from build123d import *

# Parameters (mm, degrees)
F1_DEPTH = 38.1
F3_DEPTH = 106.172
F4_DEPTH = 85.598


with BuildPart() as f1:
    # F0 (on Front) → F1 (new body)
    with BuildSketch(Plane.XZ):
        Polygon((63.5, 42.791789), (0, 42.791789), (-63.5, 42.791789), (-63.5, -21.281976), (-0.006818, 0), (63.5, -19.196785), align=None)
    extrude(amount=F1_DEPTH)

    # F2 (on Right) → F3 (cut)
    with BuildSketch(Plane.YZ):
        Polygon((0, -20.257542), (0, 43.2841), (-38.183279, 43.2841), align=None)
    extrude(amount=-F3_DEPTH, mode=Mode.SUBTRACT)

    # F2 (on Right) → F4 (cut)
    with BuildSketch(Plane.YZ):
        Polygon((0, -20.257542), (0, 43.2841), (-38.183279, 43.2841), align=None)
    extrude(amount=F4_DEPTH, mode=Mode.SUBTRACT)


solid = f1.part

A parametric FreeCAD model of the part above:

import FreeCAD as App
import Part
import Sketcher
Q = App.Units.Quantity


def add_polygon(sketch, points):
    """Adds a closed chain of lines whose ends are joined by coincident constraints."""
    first, n = sketch.GeometryCount, len(points)
    for a, b in zip(points, points[1:] + points[:1]):
        sketch.addGeometry(Part.LineSegment(App.Vector(*a, 0), App.Vector(*b, 0)), False)
    for i in range(n):
        sketch.addConstraint(Sketcher.Constraint("Coincident", first + i, 2, first + (i + 1) % n, 1))

doc = App.newDocument("Part")
body = doc.addObject("PartDesign::Body", "Body")

# Sketch on XZ plane
sketch1 = body.newObject("Sketcher::SketchObject", "Sketch")
sketch1.AttachmentSupport = (doc.getObject("XZ_Plane"), [""])
sketch1.MapMode = "FlatFace"
add_polygon(sketch1, [(64, 43), (-64, 43), (-64, -21), (0, 0), (64, -19)])  # lines 0-4
sketch1.addConstraint(Sketcher.Constraint("Horizontal", 0))
sketch1.addConstraint(Sketcher.Constraint("Vertical", 1))
sketch1.addConstraint(Sketcher.Constraint("Vertical", 4))
sketch1.addConstraint(Sketcher.Constraint("PointOnObject", 2, 2, -1))
sketch1.addConstraint(Sketcher.Constraint("DistanceX", 0, 2, 0, 1, Q("5 in")))
sketch1.addConstraint(Sketcher.Constraint("DistanceX", 0, 2, -1, 1, Q("2.5 in")))
sketch1.addConstraint(Sketcher.Constraint("Distance", 3, Q("2.612 in")))
sketch1.addConstraint(Sketcher.Constraint("DistanceY", 1, 2, 1, 1, 64.073765))
sketch1.addConstraint(Sketcher.Constraint("DistanceY", 4, 1, 4, 2, 61.988574))
sketch1.addConstraint(Sketcher.Constraint("DistanceY", -1, 1, 0, 2, 42.791789))
pad1 = body.newObject("PartDesign::Pad", "Pad")
pad1.Profile = sketch1
pad1.Length = Q("1.5 in")

# Sketch on YZ plane
sketch2 = body.newObject("Sketcher::SketchObject", "Sketch001")
sketch2.AttachmentSupport = (doc.getObject("YZ_Plane"), [""])
sketch2.MapMode = "FlatFace"
add_polygon(sketch2, [(0, -20), (0, 43), (-38, 43)])  # lines 0-2
sketch2.addConstraint(Sketcher.Constraint("Vertical", 0))
sketch2.addConstraint(Sketcher.Constraint("Horizontal", 1))
sketch2.addConstraint(Sketcher.Constraint("PointOnObject", 0, 2, -2))
sketch2.addConstraint(Sketcher.Constraint("DistanceX", 1, 2, 1, 1, 38.183279))
sketch2.addConstraint(Sketcher.Constraint("DistanceY", -1, 1, 0, 2, 43.2841))
sketch2.addConstraint(Sketcher.Constraint("Distance", 2, 74.13166))
pocket1 = body.newObject("PartDesign::Pocket", "Pocket")
pocket1.Profile = sketch2
pocket1.Length = Q("4.18 in")

# Sketch on YZ plane
sketch3 = body.newObject("Sketcher::SketchObject", "Sketch002")
sketch3.AttachmentSupport = (doc.getObject("YZ_Plane"), [""])
sketch3.MapMode = "FlatFace"
add_polygon(sketch3, [(0, -20), (0, 43), (-38, 43)])  # lines 0-2
sketch3.addConstraint(Sketcher.Constraint("Vertical", 0))
sketch3.addConstraint(Sketcher.Constraint("Horizontal", 1))
sketch3.addConstraint(Sketcher.Constraint("PointOnObject", 0, 2, -2))
sketch3.addConstraint(Sketcher.Constraint("DistanceX", 1, 2, 1, 1, 38.183279))
sketch3.addConstraint(Sketcher.Constraint("DistanceY", -1, 1, 0, 2, 43.2841))
sketch3.addConstraint(Sketcher.Constraint("Distance", 2, 74.13166))
pocket2 = body.newObject("PartDesign::Pocket", "Pocket001")
pocket2.Profile = sketch3
pocket2.Length = Q("3.37 in")
pocket2.Reversed = True

doc.recompute()
